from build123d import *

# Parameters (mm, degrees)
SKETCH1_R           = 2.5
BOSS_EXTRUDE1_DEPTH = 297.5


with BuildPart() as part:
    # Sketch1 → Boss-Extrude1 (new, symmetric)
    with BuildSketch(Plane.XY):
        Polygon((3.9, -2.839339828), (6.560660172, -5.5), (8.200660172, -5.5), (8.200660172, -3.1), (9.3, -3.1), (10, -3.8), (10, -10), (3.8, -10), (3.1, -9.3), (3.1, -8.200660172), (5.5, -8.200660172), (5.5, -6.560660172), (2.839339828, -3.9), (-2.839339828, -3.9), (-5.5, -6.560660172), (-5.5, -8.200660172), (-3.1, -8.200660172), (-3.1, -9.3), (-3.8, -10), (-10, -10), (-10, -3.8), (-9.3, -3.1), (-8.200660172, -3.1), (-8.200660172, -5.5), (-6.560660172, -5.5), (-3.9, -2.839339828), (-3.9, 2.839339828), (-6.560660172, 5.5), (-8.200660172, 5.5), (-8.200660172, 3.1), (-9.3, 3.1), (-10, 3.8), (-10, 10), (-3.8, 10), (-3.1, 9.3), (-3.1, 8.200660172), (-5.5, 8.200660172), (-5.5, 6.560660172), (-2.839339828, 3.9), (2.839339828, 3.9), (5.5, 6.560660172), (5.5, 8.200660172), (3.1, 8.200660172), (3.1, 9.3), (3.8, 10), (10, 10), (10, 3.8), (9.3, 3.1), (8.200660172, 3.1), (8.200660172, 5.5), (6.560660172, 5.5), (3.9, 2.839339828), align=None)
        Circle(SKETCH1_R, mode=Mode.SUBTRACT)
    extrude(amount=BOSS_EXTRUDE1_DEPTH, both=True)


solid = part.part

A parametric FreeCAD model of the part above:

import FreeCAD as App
import Part
import Sketcher
from FreeCAD import Vector

doc = App.newDocument("Part")
body = doc.addObject("PartDesign::Body", "Body")

# Sketch on XY plane
sketch1 = doc.addObject("Sketcher::SketchObject", "Sketch")
body.addObject(sketch1)
sketch1.AttachmentSupport = (doc.XY_Plane, [""])
sketch1.MapMode = "FlatFace"
sketch1.addGeometry(Part.LineSegment(Vector(6.56066, -5.5, 0), Vector(3.9, -2.83934, 0)), False)
sketch1.addGeometry(Part.LineSegment(Vector(3.9, -2.83934, 0), Vector(3.9, 2.83934, 0)), False)
sketch1.addGeometry(Part.LineSegment(Vector(3.9, 2.83934, 0), Vector(6.56066, 5.5, 0)), False)
sketch1.addGeometry(Part.LineSegment(Vector(6.56066, 5.5, 0), Vector(8.20066, 5.5, 0)), False)
sketch1.addGeometry(Part.LineSegment(Vector(8.20066, 5.5, 0), Vector(8.20066, 3.1, 0)), False)
sketch1.addGeometry(Part.LineSegment(Vector(8.20066, 3.1, 0), Vector(9.3, 3.1, 0)), False)
sketch1.addGeometry(Part.LineSegment(Vector(9.3, 3.1, 0), Vector(10, 3.8, 0)), False)
sketch1.addGeometry(Part.LineSegment(Vector(10, 3.8, 0), Vector(10, 10, 0)), False)
sketch1.addGeometry(Part.LineSegment(Vector(10, 10, 0), Vector(3.8, 10, 0)), False)
sketch1.addGeometry(Part.LineSegment(Vector(3.8, 10, 0), Vector(3.1, 9.3, 0)), False)
sketch1.addGeometry(Part.LineSegment(Vector(3.1, 9.3, 0), Vector(3.1, 8.20066, 0)), False)
sketch1.addGeometry(Part.LineSegment(Vector(3.1, 8.20066, 0), Vector(5.5, 8.20066, 0)), False)
sketch1.addGeometry(Part.LineSegment(Vector(5.5, 8.20066, 0), Vector(5.5, 6.56066, 0)), False)
sketch1.addGeometry(Part.LineSegment(Vector(5.5, 6.56066, 0), Vector(2.83934, 3.9, 0)), False)
sketch1.addGeometry(Part.LineSegment(Vector(2.83934, 3.9, 0), Vector(-2.83934, 3.9, 0)), False)
sketch1.addGeometry(Part.LineSegment(Vector(-2.83934, 3.9, 0), Vector(-5.5, 6.56066, 0)), False)
sketch1.addGeometry(Part.LineSegment(Vector(-5.5, 6.56066, 0), Vector(-5.5, 8.20066, 0)), False)
sketch1.addGeometry(Part.LineSegment(Vector(-5.5, 8.20066, 0), Vector(-3.1, 8.20066, 0)), False)
sketch1.addGeometry(Part.LineSegment(Vector(-3.1, 8.20066, 0), Vector(-3.1, 9.3, 0)), False)
sketch1.addGeometry(Part.LineSegment(Vector(-3.1, 9.3, 0), Vector(-3.8, 10, 0)), False)
sketch1.addGeometry(Part.LineSegment(Vector(-3.8, 10, 0), Vector(-10, 10, 0)), False)
sketch1.addGeometry(Part.LineSegment(Vector(-10, 10, 0), Vector(-10, 3.8, 0)), False)
sketch1.addGeometry(Part.LineSegment(Vector(-10, 3.8, 0), Vector(-9.3, 3.1, 0)), False)
sketch1.addGeometry(Part.LineSegment(Vector(-9.3, 3.1, 0), Vector(-8.20066, 3.1, 0)), False)
sketch1.addGeometry(Part.LineSegment(Vector(-8.20066, 3.1, 0), Vector(-8.20066, 5.5, 0)), False)
sketch1.addGeometry(Part.LineSegment(Vector(-8.20066, 5.5, 0), Vector(-6.56066, 5.5, 0)), False)
sketch1.addGeometry(Part.LineSegment(Vector(-6.56066, 5.5, 0), Vector(-3.9, 2.83934, 0)), False)
sketch1.addGeometry(Part.LineSegment(Vector(-3.9, 2.83934, 0), Vector(-3.9, -2.83934, 0)), False)
sketch1.addGeometry(Part.LineSegment(Vector(-3.9, -2.83934, 0), Vector(-6.56066, -5.5, 0)), False)
sketch1.addGeometry(Part.LineSegment(Vector(-6.56066, -5.5, 0), Vector(-8.20066, -5.5, 0)), False)
sketch1.addGeometry(Part.LineSegment(Vector(-8.20066, -5.5, 0), Vector(-8.20066, -3.1, 0)), False)
sketch1.addGeometry(Part.LineSegment(Vector(-8.20066, -3.1, 0), Vector(-9.3, -3.1, 0)), False)
sketch1.addGeometry(Part.LineSegment(Vector(-9.3, -3.1, 0), Vector(-10, -3.8, 0)), False)
sketch1.addGeometry(Part.LineSegment(Vector(-10, -3.8, 0), Vector(-10, -10, 0)), False)
sketch1.addGeometry(Part.LineSegment(Vector(-10, -10, 0), Vector(-3.8, -10, 0)), False)
sketch1.addGeometry(Part.LineSegment(Vector(-3.8, -10, 0), Vector(-3.1, -9.3, 0)), False)
sketch1.addGeometry(Part.LineSegment(Vector(-3.1, -9.3, 0), Vector(-3.1, -8.20066, 0)), False)
sketch1.addGeometry(Part.LineSegment(Vector(-3.1, -8.20066, 0), Vector(-5.5, -8.20066, 0)), False)
sketch1.addGeometry(Part.LineSegment(Vector(-5.5, -8.20066, 0), Vector(-5.5, -6.56066, 0)), False)
sketch1.addGeometry(Part.LineSegment(Vector(-5.5, -6.56066, 0), Vector(-2.83934, -3.9, 0)), False)
sketch1.addGeometry(Part.LineSegment(Vector(-2.83934, -3.9, 0), Vector(2.83934, -3.9, 0)), False)
sketch1.addGeometry(Part.LineSegment(Vector(2.83934, -3.9, 0), Vector(5.5, -6.56066, 0)), False)
sketch1.addGeometry(Part.LineSegment(Vector(5.5, -6.56066, 0), Vector(5.5, -8.20066, 0)), False)
sketch1.addGeometry(Part.LineSegment(Vector(5.5, -8.20066, 0), Vector(3.1, -8.20066, 0)), False)
sketch1.addGeometry(Part.LineSegment(Vector(3.1, -8.20066, 0), Vector(3.1, -9.3, 0)), False)
sketch1.addGeometry(Part.LineSegment(Vector(3.1, -9.3, 0), Vector(3.8, -10, 0)), False)
sketch1.addGeometry(Part.LineSegment(Vector(3.8, -10, 0), Vector(10, -10, 0)), False)
sketch1.addGeometry(Part.LineSegment(Vector(10, -10, 0), Vector(10, -3.8, 0)), False)
sketch1.addGeometry(Part.LineSegment(Vector(10, -3.8, 0), Vector(9.3, -3.1, 0)), False)
sketch1.addGeometry(Part.LineSegment(Vector(9.3, -3.1, 0), Vector(8.20066, -3.1, 0)), False)
sketch1.addGeometry(Part.LineSegment(Vector(8.20066, -3.1, 0), Vector(8.20066, -5.5, 0)), False)
sketch1.addGeometry(Part.LineSegment(Vector(8.20066, -5.5, 0), Vector(6.56066, -5.5, 0)), False)
sketch1.addGeometry(Part.Circle(Vector(0, 0, 0), Vector(0, 0, 1), 2.5), False)
sketch1.addConstraint(Sketcher.Constraint("Coincident", 0, 2, 1, 1))
sketch1.addConstraint(Sketcher.Constraint("Coincident", 1, 2, 2, 1))
sketch1.addConstraint(Sketcher.Constraint("Coincident", 2, 2, 3, 1))
sketch1.addConstraint(Sketcher.Constraint("Coincident", 3, 2, 4, 1))
sketch1.addConstraint(Sketcher.Constraint("Coincident", 4, 2, 5, 1))
sketch1.addConstraint(Sketcher.Constraint("Coincident", 5, 2, 6, 1))
sketch1.addConstraint(Sketcher.Constraint("Coincident", 6, 2, 7, 1))
sketch1.addConstraint(Sketcher.Constraint("Coincident", 7, 2, 8, 1))
sketch1.addConstraint(Sketcher.Constraint("Coincident", 8, 2, 9, 1))
sketch1.addConstraint(Sketcher.Constraint("Coincident", 9, 2, 10, 1))
sketch1.addConstraint(Sketcher.Constraint("Coincident", 10, 2, 11, 1))
sketch1.addConstraint(Sketcher.Constraint("Coincident", 11, 2, 12, 1))
sketch1.addConstraint(Sketcher.Constraint("Coincident", 12, 2, 13, 1))
sketch1.addConstraint(Sketcher.Constraint("Coincident", 13, 2, 14, 1))
sketch1.addConstraint(Sketcher.Constraint("Coincident", 14, 2, 15, 1))
sketch1.addConstraint(Sketcher.Constraint("Coincident", 15, 2, 16, 1))
sketch1.addConstraint(Sketcher.Constraint("Coincident", 16, 2, 17, 1))
sketch1.addConstraint(Sketcher.Constraint("Coincident", 17, 2, 18, 1))
sketch1.addConstraint(Sketcher.Constraint("Coincident", 18, 2, 19, 1))
sketch1.addConstraint(Sketcher.Constraint("Coincident", 19, 2, 20, 1))
sketch1.addConstraint(Sketcher.Constraint("Coincident", 20, 2, 21, 1))
sketch1.addConstraint(Sketcher.Constraint("Coincident", 21, 2, 22, 1))
sketch1.addConstraint(Sketcher.Constraint("Coincident", 22, 2, 23, 1))
sketch1.addConstraint(Sketcher.Constraint("Coincident", 23, 2, 24, 1))
sketch1.addConstraint(Sketcher.Constraint("Coincident", 24, 2, 25, 1))
sketch1.addConstraint(Sketcher.Constraint("Coincident", 25, 2, 26, 1))
sketch1.addConstraint(Sketcher.Constraint("Coincident", 26, 2, 27, 1))
sketch1.addConstraint(Sketcher.Constraint("Coincident", 27, 2, 28, 1))
sketch1.addConstraint(Sketcher.Constraint("Coincident", 28, 2, 29, 1))
sketch1.addConstraint(Sketcher.Constraint("Coincident", 29, 2, 30, 1))
sketch1.addConstraint(Sketcher.Constraint("Coincident", 30, 2, 31, 1))
sketch1.addConstraint(Sketcher.Constraint("Coincident", 31, 2, 32, 1))
sketch1.addConstraint(Sketcher.Constraint("Coincident", 32, 2, 33, 1))
sketch1.addConstraint(Sketcher.Constraint("Coincident", 33, 2, 34, 1))
sketch1.addConstraint(Sketcher.Constraint("Coincident", 34, 2, 35, 1))
sketch1.addConstraint(Sketcher.Constraint("Coincident", 35, 2, 36, 1))
sketch1.addConstraint(Sketcher.Constraint("Coincident", 36, 2, 37, 1))
sketch1.addConstraint(Sketcher.Constraint("Coincident", 37, 2, 38, 1))
sketch1.addConstraint(Sketcher.Constraint("Coincident", 38, 2, 39, 1))
sketch1.addConstraint(Sketcher.Constraint("Coincident", 39, 2, 40, 1))
sketch1.addConstraint(Sketcher.Constraint("Coincident", 40, 2, 41, 1))
sketch1.addConstraint(Sketcher.Constraint("Coincident", 41, 2, 42, 1))
sketch1.addConstraint(Sketcher.Constraint("Coincident", 42, 2, 43, 1))
sketch1.addConstraint(Sketcher.Constraint("Coincident", 43, 2, 44, 1))
sketch1.addConstraint(Sketcher.Constraint("Coincident", 44, 2, 45, 1))
sketch1.addConstraint(Sketcher.Constraint("Coincident", 45, 2, 46, 1))
sketch1.addConstraint(Sketcher.Constraint("Coincident", 46, 2, 47, 1))
sketch1.addConstraint(Sketcher.Constraint("Coincident", 47, 2, 48, 1))
sketch1.addConstraint(Sketcher.Constraint("Coincident", 48, 2, 49, 1))
sketch1.addConstraint(Sketcher.Constraint("Coincident", 49, 2, 50, 1))
sketch1.addConstraint(Sketcher.Constraint("Coincident", 50, 2, 51, 1))
sketch1.addConstraint(Sketcher.Constraint("Coincident", 51, 2, 0, 1))
sketch1.addConstraint(Sketcher.Constraint("Vertical", 1))
sketch1.addConstraint(Sketcher.Constraint("Horizontal", 3))
sketch1.addConstraint(Sketcher.Constraint("Vertical", 4))
sketch1.addConstraint(Sketcher.Constraint("Horizontal", 5))
sketch1.addConstraint(Sketcher.Constraint("Vertical", 7))
sketch1.addConstraint(Sketcher.Constraint("Horizontal", 8))
sketch1.addConstraint(Sketcher.Constraint("Vertical", 10))
sketch1.addConstraint(Sketcher.Constraint("Horizontal", 11))
sketch1.addConstraint(Sketcher.Constraint("Vertical", 12))
sketch1.addConstraint(Sketcher.Constraint("Horizontal", 14))
sketch1.addConstraint(Sketcher.Constraint("Vertical", 16))
sketch1.addConstraint(Sketcher.Constraint("Horizontal", 17))
sketch1.addConstraint(Sketcher.Constraint("Vertical", 18))
sketch1.addConstraint(Sketcher.Constraint("Horizontal", 20))
sketch1.addConstraint(Sketcher.Constraint("Vertical", 21))
sketch1.addConstraint(Sketcher.Constraint("Horizontal", 23))
sketch1.addConstraint(Sketcher.Constraint("Vertical", 24))
sketch1.addConstraint(Sketcher.Constraint("Horizontal", 25))
sketch1.addConstraint(Sketcher.Constraint("Vertical", 27))
sketch1.addConstraint(Sketcher.Constraint("Horizontal", 29))
sketch1.addConstraint(Sketcher.Constraint("Vertical", 30))
sketch1.addConstraint(Sketcher.Constraint("Horizontal", 31))
sketch1.addConstraint(Sketcher.Constraint("Vertical", 33))
sketch1.addConstraint(Sketcher.Constraint("Horizontal", 34))
sketch1.addConstraint(Sketcher.Constraint("Vertical", 36))
sketch1.addConstraint(Sketcher.Constraint("Horizontal", 37))
sketch1.addConstraint(Sketcher.Constraint("Vertical", 38))
sketch1.addConstraint(Sketcher.Constraint("Horizontal", 40))
sketch1.addConstraint(Sketcher.Constraint("Vertical", 42))
sketch1.addConstraint(Sketcher.Constraint("Horizontal", 43))
sketch1.addConstraint(Sketcher.Constraint("Vertical", 44))
sketch1.addConstraint(Sketcher.Constraint("Horizontal", 46))
sketch1.addConstraint(Sketcher.Constraint("Vertical", 47))
sketch1.addConstraint(Sketcher.Constraint("Horizontal", 49))
sketch1.addConstraint(Sketcher.Constraint("Vertical", 50))
sketch1.addConstraint(Sketcher.Constraint("Horizontal", 51))
sketch1.addConstraint(Sketcher.Constraint("Coincident", 52, 3, -1, 1))
sketch1.addConstraint(Sketcher.Constraint("Symmetric", 0, 2, 26, 2, -1, 1))
sketch1.addConstraint(Sketcher.Constraint("Symmetric", 2, 2, 28, 2, -1, 1))
sketch1.addConstraint(Sketcher.Constraint("Symmetric", 4, 2, 30, 2, -1, 1))
sketch1.addConstraint(Sketcher.Constraint("Symmetric", 6, 2, 32, 2, -1, 1))
sketch1.addConstraint(Sketcher.Constraint("Symmetric", 8, 2, 34, 2, -1, 1))
sketch1.addConstraint(Sketcher.Constraint("Symmetric", 9, 2, 35, 2, -1, 1))
sketch1.addConstraint(Sketcher.Constraint("Symmetric", 11, 2, 37, 2, -1, 1))
sketch1.addConstraint(Sketcher.Constraint("Symmetric", 13, 2, 39, 2, -1, 1))
sketch1.addConstraint(Sketcher.Constraint("Symmetric", 15, 2, 41, 2, -1, 1))
sketch1.addConstraint(Sketcher.Constraint("Symmetric", 17, 2, 43, 2, -1, 1))
sketch1.addConstraint(Sketcher.Constraint("Symmetric", 19, 2, 45, 2, -1, 1))
sketch1.addConstraint(Sketcher.Constraint("Symmetric", 21, 2, 47, 2, -1, 1))
sketch1.addConstraint(Sketcher.Constraint("Symmetric", 22, 2, 48, 2, -1, 1))
sketch1.addConstraint(Sketcher.Constraint("Symmetric", 24, 2, 50, 2, -1, 1))
sketch1.addConstraint(Sketcher.Constraint("Symmetric", 12, 2, 15, 2, -2))
sketch1.addConstraint(Sketcher.Constraint("Symmetric", 10, 2, 17, 2, -2))
sketch1.addConstraint(Sketcher.Constraint("Symmetric", 8, 2, 19, 2, -2))
sketch1.addConstraint(Sketcher.Constraint("Symmetric", 6, 2, 21, 2, -2))
sketch1.addConstraint(Sketcher.Constraint("Symmetric", 5, 2, 22, 2, -2))
sketch1.addConstraint(Sketcher.Constraint("Symmetric", 3, 2, 24, 2, -2))
sketch1.addConstraint(Sketcher.Constraint("Perpendicular", 0, 2))
sketch1.addConstraint(Sketcher.Constraint("Parallel", 2, 6))
sketch1.addConstraint(Sketcher.Constraint("Parallel", 6, 9))
sketch1.addConstraint(Sketcher.Constraint("Parallel", 9, 13))
sketch1.addConstraint(Sketcher.Constraint("Perpendicular", 13, 15))
sketch1.addConstraint(Sketcher.Constraint("Parallel", 15, 19))
sketch1.addConstraint(Sketcher.Constraint("Parallel", 19, 22))
sketch1.addConstraint(Sketcher.Constraint("Parallel", 22, 26))
sketch1.addConstraint(Sketcher.Constraint("Perpendicular", 26, 28))
sketch1.addConstraint(Sketcher.Constraint("Parallel", 28, 32))
sketch1.addConstraint(Sketcher.Constraint("Parallel", 35, 39))
sketch1.addConstraint(Sketcher.Constraint("Perpendicular", 39, 41))
sketch1.addConstraint(Sketcher.Constraint("Parallel", 41, 45))
sketch1.addConstraint(Sketcher.Constraint("Horizontal", 1, 2, 26, 2))
sketch1.addConstraint(Sketcher.Constraint("Equal", 40, 1))
sketch1.addConstraint(Sketcher.Constraint("Equal", 43, 4))
sketch1.addConstraint(Sketcher.Constraint("Equal", 46, 7))
sketch1.addConstraint(Sketcher.Constraint("Equal", 49, 10))
sketch1.addConstraint(Sketcher.Constraint("Equal", 51, 12))
sketch1.addConstraint(Sketcher.Constraint("Equal", 6, 9))
sketch1.addConstraint(Sketcher.Constraint("Equal", 2, 13))
sketch1.addConstraint(Sketcher.Constraint("Diameter", 52, 5.0))
sketch1.addConstraint(Sketcher.Constraint("DistanceX", 8, 2, 8, 1, 6.2))
sketch1.addConstraint(Sketcher.Constraint("DistanceX", 11, 1, 11, 2, 2.4))
sketch1.addConstraint(Sketcher.Constraint("DistanceX", -1, 1, 6, 2, 10.0))
sketch1.addConstraint(Sketcher.Constraint("DistanceX", 3, 1, 3, 2, 1.64))
sketch1.addConstraint(Sketcher.Constraint("DistanceX", -1, 1, 0, 2, 3.9))
sketch1.addConstraint(Sketcher.Constraint("DistanceY", -1, 1, 2, 2, 5.5))
sketch1.addConstraint(Sketcher.Constraint("DistanceX", 5, 1, 5, 2, 1.09934))
pad1 = doc.addObject("PartDesign::Pad", "Pad")
body.addObject(pad1)
pad1.Profile = sketch1
pad1.Length = 595
pad1.Midplane = True

doc.recompute()
